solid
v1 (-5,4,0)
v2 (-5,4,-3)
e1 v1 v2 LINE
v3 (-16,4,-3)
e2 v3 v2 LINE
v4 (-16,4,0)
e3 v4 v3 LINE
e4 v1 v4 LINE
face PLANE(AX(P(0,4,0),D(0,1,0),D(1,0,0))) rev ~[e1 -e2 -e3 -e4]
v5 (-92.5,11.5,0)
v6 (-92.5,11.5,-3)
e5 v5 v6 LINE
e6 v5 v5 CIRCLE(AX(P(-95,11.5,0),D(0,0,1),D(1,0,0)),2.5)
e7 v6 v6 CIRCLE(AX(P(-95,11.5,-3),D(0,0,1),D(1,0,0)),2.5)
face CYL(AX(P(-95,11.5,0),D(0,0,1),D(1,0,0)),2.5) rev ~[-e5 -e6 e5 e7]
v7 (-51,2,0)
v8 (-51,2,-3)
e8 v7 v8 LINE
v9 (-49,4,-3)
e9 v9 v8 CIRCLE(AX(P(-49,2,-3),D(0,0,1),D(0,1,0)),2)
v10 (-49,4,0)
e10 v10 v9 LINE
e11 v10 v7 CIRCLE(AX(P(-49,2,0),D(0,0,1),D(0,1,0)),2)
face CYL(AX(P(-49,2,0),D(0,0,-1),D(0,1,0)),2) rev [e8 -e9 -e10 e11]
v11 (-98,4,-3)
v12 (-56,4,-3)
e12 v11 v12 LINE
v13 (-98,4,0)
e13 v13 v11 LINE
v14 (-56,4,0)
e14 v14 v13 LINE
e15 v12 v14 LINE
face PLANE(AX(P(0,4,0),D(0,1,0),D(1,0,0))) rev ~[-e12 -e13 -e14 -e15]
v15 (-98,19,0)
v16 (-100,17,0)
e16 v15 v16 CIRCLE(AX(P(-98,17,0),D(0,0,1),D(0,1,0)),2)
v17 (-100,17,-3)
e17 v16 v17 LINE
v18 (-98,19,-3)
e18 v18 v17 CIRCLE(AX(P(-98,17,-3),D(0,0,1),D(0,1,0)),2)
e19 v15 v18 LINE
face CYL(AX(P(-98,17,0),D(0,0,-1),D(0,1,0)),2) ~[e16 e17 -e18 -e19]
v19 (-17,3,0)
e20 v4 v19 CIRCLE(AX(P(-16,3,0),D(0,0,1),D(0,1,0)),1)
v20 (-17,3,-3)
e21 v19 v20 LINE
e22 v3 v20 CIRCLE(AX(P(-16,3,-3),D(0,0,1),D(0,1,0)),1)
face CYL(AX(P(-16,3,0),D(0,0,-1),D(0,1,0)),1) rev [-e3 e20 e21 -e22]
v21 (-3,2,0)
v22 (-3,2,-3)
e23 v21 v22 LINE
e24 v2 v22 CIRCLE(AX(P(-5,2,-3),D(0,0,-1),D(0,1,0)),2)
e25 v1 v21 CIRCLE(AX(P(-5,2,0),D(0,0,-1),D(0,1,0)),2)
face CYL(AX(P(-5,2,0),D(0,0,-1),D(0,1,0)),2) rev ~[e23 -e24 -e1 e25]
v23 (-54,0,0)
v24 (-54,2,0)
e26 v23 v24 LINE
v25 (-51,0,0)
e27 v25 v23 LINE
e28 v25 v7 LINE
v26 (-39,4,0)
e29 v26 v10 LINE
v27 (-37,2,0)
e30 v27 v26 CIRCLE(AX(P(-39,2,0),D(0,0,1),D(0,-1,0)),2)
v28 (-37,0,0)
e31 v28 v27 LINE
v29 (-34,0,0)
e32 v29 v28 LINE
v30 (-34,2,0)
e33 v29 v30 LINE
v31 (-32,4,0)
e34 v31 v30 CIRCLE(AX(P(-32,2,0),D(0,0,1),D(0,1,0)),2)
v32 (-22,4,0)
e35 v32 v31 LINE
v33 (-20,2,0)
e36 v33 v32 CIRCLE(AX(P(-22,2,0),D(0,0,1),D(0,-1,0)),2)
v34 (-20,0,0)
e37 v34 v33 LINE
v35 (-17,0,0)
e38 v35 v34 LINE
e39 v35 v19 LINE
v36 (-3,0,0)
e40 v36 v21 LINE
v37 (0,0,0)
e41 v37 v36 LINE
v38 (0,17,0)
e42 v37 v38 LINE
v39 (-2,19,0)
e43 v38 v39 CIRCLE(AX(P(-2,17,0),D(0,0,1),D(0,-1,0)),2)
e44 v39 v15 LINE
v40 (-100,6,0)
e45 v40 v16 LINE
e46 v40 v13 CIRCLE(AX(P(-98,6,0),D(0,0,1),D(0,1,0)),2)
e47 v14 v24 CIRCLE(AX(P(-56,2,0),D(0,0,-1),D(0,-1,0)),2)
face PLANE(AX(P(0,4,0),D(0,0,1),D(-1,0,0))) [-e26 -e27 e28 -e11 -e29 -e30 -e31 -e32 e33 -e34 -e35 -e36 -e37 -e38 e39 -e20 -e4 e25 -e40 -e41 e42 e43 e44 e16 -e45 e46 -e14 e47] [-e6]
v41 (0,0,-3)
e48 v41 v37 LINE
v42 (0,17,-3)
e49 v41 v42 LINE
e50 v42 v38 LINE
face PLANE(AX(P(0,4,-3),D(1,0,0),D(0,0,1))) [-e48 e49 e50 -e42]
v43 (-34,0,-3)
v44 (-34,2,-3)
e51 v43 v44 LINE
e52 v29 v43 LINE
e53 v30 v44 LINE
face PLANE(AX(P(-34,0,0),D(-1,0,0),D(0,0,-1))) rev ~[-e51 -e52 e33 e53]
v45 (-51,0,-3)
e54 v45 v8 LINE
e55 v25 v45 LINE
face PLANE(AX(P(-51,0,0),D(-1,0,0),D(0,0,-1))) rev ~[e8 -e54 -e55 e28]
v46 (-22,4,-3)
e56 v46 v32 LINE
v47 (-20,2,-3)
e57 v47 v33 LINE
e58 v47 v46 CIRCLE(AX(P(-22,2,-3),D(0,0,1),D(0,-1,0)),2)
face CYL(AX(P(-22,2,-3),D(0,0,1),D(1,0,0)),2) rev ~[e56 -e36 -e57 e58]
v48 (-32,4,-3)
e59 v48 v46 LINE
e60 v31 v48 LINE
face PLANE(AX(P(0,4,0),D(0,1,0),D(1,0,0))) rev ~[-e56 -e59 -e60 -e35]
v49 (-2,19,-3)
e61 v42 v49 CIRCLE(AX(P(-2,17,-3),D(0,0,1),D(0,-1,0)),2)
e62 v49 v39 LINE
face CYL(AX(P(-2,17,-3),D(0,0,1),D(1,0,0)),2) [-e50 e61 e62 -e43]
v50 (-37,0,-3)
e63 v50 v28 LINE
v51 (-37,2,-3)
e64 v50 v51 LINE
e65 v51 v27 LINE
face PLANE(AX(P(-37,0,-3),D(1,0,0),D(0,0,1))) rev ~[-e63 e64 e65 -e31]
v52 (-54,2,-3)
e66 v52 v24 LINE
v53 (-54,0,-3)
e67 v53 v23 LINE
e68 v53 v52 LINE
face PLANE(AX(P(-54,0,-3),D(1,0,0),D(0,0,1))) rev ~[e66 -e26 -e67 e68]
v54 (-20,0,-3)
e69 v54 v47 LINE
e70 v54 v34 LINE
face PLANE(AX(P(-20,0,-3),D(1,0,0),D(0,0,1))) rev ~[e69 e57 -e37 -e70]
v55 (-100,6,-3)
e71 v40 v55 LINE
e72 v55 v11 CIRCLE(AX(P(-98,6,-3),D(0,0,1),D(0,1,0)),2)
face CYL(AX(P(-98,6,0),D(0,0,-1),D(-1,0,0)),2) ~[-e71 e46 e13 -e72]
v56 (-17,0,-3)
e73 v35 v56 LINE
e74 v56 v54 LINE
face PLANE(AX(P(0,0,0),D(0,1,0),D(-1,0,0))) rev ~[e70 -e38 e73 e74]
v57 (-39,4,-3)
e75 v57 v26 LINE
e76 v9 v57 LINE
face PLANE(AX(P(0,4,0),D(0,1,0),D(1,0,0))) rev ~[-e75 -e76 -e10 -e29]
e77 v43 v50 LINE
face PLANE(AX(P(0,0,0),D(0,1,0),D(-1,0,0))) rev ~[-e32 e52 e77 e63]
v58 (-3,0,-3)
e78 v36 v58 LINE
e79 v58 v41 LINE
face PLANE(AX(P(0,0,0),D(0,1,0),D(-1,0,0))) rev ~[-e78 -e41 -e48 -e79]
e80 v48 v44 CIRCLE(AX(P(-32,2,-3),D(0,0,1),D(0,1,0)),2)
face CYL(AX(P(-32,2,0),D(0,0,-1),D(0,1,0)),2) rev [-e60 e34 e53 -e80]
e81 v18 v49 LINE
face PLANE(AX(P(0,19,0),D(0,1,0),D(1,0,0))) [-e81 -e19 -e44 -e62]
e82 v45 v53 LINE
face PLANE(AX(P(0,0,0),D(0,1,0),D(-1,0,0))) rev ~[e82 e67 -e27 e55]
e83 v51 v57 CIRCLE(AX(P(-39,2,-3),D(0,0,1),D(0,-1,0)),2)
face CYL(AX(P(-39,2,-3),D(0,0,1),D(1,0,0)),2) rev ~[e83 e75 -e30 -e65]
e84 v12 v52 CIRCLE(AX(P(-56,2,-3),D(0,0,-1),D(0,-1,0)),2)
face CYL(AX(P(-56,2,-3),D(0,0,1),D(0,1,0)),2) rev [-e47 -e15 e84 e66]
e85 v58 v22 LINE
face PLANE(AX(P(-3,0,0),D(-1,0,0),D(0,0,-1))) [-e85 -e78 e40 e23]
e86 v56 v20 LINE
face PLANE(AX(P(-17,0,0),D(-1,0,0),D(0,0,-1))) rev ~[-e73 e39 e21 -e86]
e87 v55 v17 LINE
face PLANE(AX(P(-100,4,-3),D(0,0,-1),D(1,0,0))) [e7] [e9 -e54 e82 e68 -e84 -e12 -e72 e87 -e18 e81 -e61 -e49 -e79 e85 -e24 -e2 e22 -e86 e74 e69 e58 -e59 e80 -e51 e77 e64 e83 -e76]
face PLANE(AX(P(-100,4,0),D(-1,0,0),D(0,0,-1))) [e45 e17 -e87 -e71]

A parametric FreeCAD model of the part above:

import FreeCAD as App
import Part
import Sketcher
Q = App.Units.Quantity


def edges_at(feature, points):
    """Names of the edges that pass closest to the given points."""
    edges = feature.Shape.Edges
    near = lambda p: min(range(len(edges)), key=lambda i: edges[i].distToShape(Part.Vertex(*p))[0])
    return sorted({f"Edge{near(p) + 1}" for p in points})

doc = App.newDocument("Part")
params = doc.addObject("Spreadsheet::Sheet", "Params")
for row, (alias, value) in enumerate([
    ("sketch1_width", "3 mm"),
    ("pad1_length", "4 mm"),
    ("sketch2_width", "100 mm"),
    ("sketch2_height", "3 mm"),
    ("pad2_length", "15 mm"),
    ("fillet_radius", "1 mm"),
    ("fillet2_radius", "2 mm"),
    ("fillet3_radius", "2 mm"),
    ("sketch3_diameter", "5 mm"),
    ("pocket1_length", "14 mm"),
], start=1):
    params.set(f"A{row}", alias)
    params.set(f"B{row}", "=" + value)
    params.setAlias(f"B{row}", alias)

body = doc.addObject("PartDesign::Body", "Body")
body.AllowCompound = True

sketch1 = doc.addObject("Sketcher::SketchObject", "Sketch")
body.addObject(sketch1)
sketch1.AttachmentSupport = (doc.XZ_Plane, [""])
sketch1.MapMode = "FlatFace"
sketch1.addGeometry([
    Part.LineSegment(App.Vector(-54, 0, 0), App.Vector(-51, 0, 0)),
    Part.LineSegment(App.Vector(-51, 0, 0), App.Vector(-51, -3, 0)),
    Part.LineSegment(App.Vector(-51, -3, 0), App.Vector(-54, -3, 0)),
    Part.LineSegment(App.Vector(-54, -3, 0), App.Vector(-54, 0, 0)),
    Part.LineSegment(App.Vector(-37, 0, 0), App.Vector(-34, 0, 0)),
    Part.LineSegment(App.Vector(-34, 0, 0), App.Vector(-34, -3, 0)),
    Part.LineSegment(App.Vector(-34, -3, 0), App.Vector(-37, -3, 0)),
    Part.LineSegment(App.Vector(-37, -3, 0), App.Vector(-37, 0, 0)),
    Part.LineSegment(App.Vector(-20, 0, 0), App.Vector(-17, 0, 0)),
    Part.LineSegment(App.Vector(-17, 0, 0), App.Vector(-17, -3, 0)),
    Part.LineSegment(App.Vector(-17, -3, 0), App.Vector(-20, -3, 0)),
    Part.LineSegment(App.Vector(-20, -3, 0), App.Vector(-20, 0, 0)),
    Part.LineSegment(App.Vector(-3, 0, 0), App.Vector(0, 0, 0)),
    Part.LineSegment(App.Vector(0, 0, 0), App.Vector(0, -3, 0)),
    Part.LineSegment(App.Vector(0, -3, 0), App.Vector(-3, -3, 0)),
    Part.LineSegment(App.Vector(-3, -3, 0), App.Vector(-3, 0, 0)),
], False)
sketch1.addConstraint([
    Sketcher.Constraint("Coincident", 0, 2, 1, 1),
    Sketcher.Constraint("Coincident", 1, 2, 2, 1),
    Sketcher.Constraint("Coincident", 2, 2, 3, 1),
    Sketcher.Constraint("Coincident", 3, 2, 0, 1),
    Sketcher.Constraint("Coincident", 4, 2, 5, 1),
    Sketcher.Constraint("Coincident", 5, 2, 6, 1),
    Sketcher.Constraint("Coincident", 6, 2, 7, 1),
    Sketcher.Constraint("Coincident", 7, 2, 4, 1),
    Sketcher.Constraint("Coincident", 8, 2, 9, 1),
    Sketcher.Constraint("Coincident", 9, 2, 10, 1),
    Sketcher.Constraint("Coincident", 10, 2, 11, 1),
    Sketcher.Constraint("Coincident", 11, 2, 8, 1),
    Sketcher.Constraint("Coincident", 12, 2, 13, 1),
    Sketcher.Constraint("Coincident", 13, 2, 14, 1),
    Sketcher.Constraint("Coincident", 14, 2, 15, 1),
    Sketcher.Constraint("Coincident", 15, 2, 12, 1),
    Sketcher.Constraint("Horizontal", 0),
    Sketcher.Constraint("Vertical", 1),
    Sketcher.Constraint("Horizontal", 2),
    Sketcher.Constraint("Vertical", 3),
    Sketcher.Constraint("Horizontal", 4),
    Sketcher.Constraint("Vertical", 5),
    Sketcher.Constraint("Horizontal", 6),
    Sketcher.Constraint("Vertical", 7),
    Sketcher.Constraint("Horizontal", 8),
    Sketcher.Constraint("Vertical", 9),
    Sketcher.Constraint("Horizontal", 10),
    Sketcher.Constraint("Vertical", 11),
    Sketcher.Constraint("Horizontal", 12),
    Sketcher.Constraint("Vertical", 13),
    Sketcher.Constraint("Horizontal", 14),
    Sketcher.Constraint("Vertical", 15),
    Sketcher.Constraint("Coincident", 12, 2, -1, 1),
    Sketcher.Constraint("PointOnObject", 0, 2, -1),
    Sketcher.Constraint("PointOnObject", 4, 2, -1),
    Sketcher.Constraint("PointOnObject", 8, 2, -1),
    Sketcher.Constraint("Horizontal", 2, 2, 5, 2),
    Sketcher.Constraint("Horizontal", 6, 2, 9, 2),
    Sketcher.Constraint("Horizontal", 10, 2, 13, 2),
    Sketcher.Constraint("Equal", 2, 4),
    Sketcher.Constraint("Equal", 6, 8),
    Sketcher.Constraint("Equal", 10, 12),
    Sketcher.Constraint("Equal", 14, 1),
    Sketcher.Constraint("DistanceX", 0, 1, 0, 2, Q("3 mm")),
    Sketcher.Constraint("DistanceX", 8, 2, -1, 1, Q("17 mm")),
    Sketcher.Constraint("DistanceX", 0, 2, 4, 2, Q("17 mm")),
    Sketcher.Constraint("DistanceX", 4, 2, 8, 2, Q("17 mm")),
])
sketch1.setExpression("Constraints[43]", "Params.sketch1_width")
pad1 = doc.addObject("PartDesign::Pad", "Pad")
body.addObject(pad1)
pad1.Profile = sketch1
pad1.setExpression("Length", "Params.pad1_length")
pad1.Reversed = True

sketch2 = doc.addObject("Sketcher::SketchObject", "Sketch001")
body.addObject(sketch2)
sketch2.AttachmentSupport = (doc.XZ_Plane, [""])
sketch2.MapMode = "FlatFace"
sketch2.AttachmentOffset = App.Placement(App.Vector(0, 0, -4), App.Rotation())
sketch2.addGeometry([
    Part.LineSegment(App.Vector(-100, 0, 0), App.Vector(0, 0, 0)),
    Part.LineSegment(App.Vector(0, 0, 0), App.Vector(0, -3, 0)),
    Part.LineSegment(App.Vector(0, -3, 0), App.Vector(-100, -3, 0)),
    Part.LineSegment(App.Vector(-100, -3, 0), App.Vector(-100, 0, 0)),
], False)
sketch2.addConstraint([
    Sketcher.Constraint("Coincident", 0, 2, 1, 1),
    Sketcher.Constraint("Coincident", 1, 2, 2, 1),
    Sketcher.Constraint("Coincident", 2, 2, 3, 1),
    Sketcher.Constraint("Coincident", 3, 2, 0, 1),
    Sketcher.Constraint("Horizontal", 0),
    Sketcher.Constraint("Vertical", 1),
    Sketcher.Constraint("Horizontal", 2),
    Sketcher.Constraint("Vertical", 3),
    Sketcher.Constraint("Coincident", 0, 2, -1, 1),
    Sketcher.Constraint("DistanceX", 0, 1, 0, 2, Q("100 mm")),
    Sketcher.Constraint("DistanceY", 1, 2, 1, 1, Q("3 mm")),
])
sketch2.setExpression("Constraints[9]", "Params.sketch2_width")
sketch2.setExpression("Constraints[10]", "Params.sketch2_height")
pad2 = doc.addObject("PartDesign::Pad", "Pad001")
body.addObject(pad2)
pad2.Profile = sketch2
pad2.setExpression("Length", "Params.pad2_length")
pad2.Reversed = True
doc.recompute()

fillet = doc.addObject("PartDesign::Fillet", "Fillet")
body.addObject(fillet)
fillet.Base = (pad2, edges_at(pad2, [(-17, 4, -1.5)]))
fillet.setExpression("Radius", "Params.fillet_radius")
doc.recompute()

fillet2 = doc.addObject("PartDesign::Fillet", "Fillet001")
body.addObject(fillet2)
fillet2.Base = (fillet, edges_at(fillet, [
    (-34, 4, -1.5),
    (-51, 4, -1.5),
    (-54, 4, -1.5),
    (-37, 4, -1.5),
    (-20, 4, -1.5),
    (-3, 4, -1.5),
    (0, 19, -1.5),
]))
fillet2.setExpression("Radius", "Params.fillet2_radius")
doc.recompute()

fillet3 = doc.addObject("PartDesign::Fillet", "Fillet002")
body.addObject(fillet3)
fillet3.Base = (fillet2, edges_at(fillet2, [(-100, 19, -1.5), (-100, 4, -1.5)]))
fillet3.setExpression("Radius", "Params.fillet3_radius")

sketch3 = doc.addObject("Sketcher::SketchObject", "Sketch002")
body.addObject(sketch3)
sketch3.AttachmentSupport = (doc.XY_Plane, [""])
sketch3.MapMode = "FlatFace"
sketch3.addGeometry(Part.Circle(App.Vector(-95, 11.5, 0), App.Vector(0, 0, 1), 2.5), False)
sketch3.addConstraint([
    Sketcher.Constraint("Diameter", 0, Q("5 mm")),
    Sketcher.Constraint("DistanceX", 0, 3, -1, 1, Q("95 mm")),
    Sketcher.Constraint("DistanceY", -1, 1, 0, 3, Q("11.5 mm")),
])
sketch3.setExpression("Constraints[0]", "Params.sketch3_diameter")
pocket1 = doc.addObject("PartDesign::Pocket", "Pocket")
body.addObject(pocket1)
pocket1.Profile = sketch3
pocket1.setExpression("Length", "Params.pocket1_length")

doc.recompute()
